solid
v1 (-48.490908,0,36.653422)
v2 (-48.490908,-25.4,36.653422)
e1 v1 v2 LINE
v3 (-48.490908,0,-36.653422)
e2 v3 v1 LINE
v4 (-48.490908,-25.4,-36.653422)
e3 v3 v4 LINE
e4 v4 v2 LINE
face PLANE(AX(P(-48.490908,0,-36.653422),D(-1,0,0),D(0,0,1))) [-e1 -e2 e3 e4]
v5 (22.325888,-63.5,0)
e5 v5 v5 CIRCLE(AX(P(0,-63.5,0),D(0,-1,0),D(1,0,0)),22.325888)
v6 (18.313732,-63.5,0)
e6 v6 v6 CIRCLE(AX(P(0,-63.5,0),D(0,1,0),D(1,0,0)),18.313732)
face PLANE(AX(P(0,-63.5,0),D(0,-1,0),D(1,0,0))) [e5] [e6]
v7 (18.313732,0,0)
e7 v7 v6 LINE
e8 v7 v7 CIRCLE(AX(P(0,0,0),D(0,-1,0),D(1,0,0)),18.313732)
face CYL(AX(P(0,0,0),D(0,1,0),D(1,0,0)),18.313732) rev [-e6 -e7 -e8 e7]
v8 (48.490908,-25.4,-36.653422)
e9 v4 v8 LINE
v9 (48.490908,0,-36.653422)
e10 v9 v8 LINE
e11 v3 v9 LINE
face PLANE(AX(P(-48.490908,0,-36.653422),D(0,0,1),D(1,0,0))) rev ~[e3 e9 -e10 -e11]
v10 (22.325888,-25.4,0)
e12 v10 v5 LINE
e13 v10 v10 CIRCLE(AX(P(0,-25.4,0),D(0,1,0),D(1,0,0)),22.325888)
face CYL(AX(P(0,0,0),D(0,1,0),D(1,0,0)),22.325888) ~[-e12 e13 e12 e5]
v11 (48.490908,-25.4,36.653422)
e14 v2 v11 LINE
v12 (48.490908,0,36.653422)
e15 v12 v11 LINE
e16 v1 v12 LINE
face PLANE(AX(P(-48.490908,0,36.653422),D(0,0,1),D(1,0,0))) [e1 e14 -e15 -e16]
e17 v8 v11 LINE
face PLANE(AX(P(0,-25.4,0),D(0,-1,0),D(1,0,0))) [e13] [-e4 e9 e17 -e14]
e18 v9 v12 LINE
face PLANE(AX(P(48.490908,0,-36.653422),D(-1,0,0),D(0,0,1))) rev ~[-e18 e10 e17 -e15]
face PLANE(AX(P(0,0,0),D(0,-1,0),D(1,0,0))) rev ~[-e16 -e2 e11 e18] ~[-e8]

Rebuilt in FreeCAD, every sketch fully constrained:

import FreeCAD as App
import Part
import Sketcher
Q = App.Units.Quantity


def add_polygon(sketch, points):
    """Adds a closed chain of lines whose ends are joined by coincident constraints."""
    first, n = sketch.GeometryCount, len(points)
    for a, b in zip(points, points[1:] + points[:1]):
        sketch.addGeometry(Part.LineSegment(App.Vector(*a, 0), App.Vector(*b, 0)), False)
    for i in range(n):
        sketch.addConstraint(Sketcher.Constraint("Coincident", first + i, 2, first + (i + 1) % n, 1))

doc = App.newDocument("Part")
body = doc.addObject("PartDesign::Body", "Body")

# Sketch on XZ plane
sketch1 = doc.addObject("Sketcher::SketchObject", "Sketch")
body.addObject(sketch1)
sketch1.AttachmentSupport = (doc.XZ_Plane, [""])
sketch1.MapMode = "FlatFace"
add_polygon(sketch1, [(-48.490908, 36.653422), (-48.490908, -36.653422), (48.490908, -36.653422), (48.490908, 36.653422)])  # lines 0-3
sketch1.addConstraint(Sketcher.Constraint("Vertical", 0))
sketch1.addConstraint(Sketcher.Constraint("Horizontal", 1))
sketch1.addConstraint(Sketcher.Constraint("Vertical", 2))
sketch1.addConstraint(Sketcher.Constraint("Horizontal", 3))
sketch1.addConstraint(Sketcher.Constraint("Symmetric", 0, 2, 2, 2, -1, 1))
sketch1.addConstraint(Sketcher.Constraint("DistanceX", 1, 1, 1, 2, Q("96.981816 mm")))
sketch1.addConstraint(Sketcher.Constraint("DistanceY", 0, 2, 0, 1, Q("73.306844 mm")))
pad1 = doc.addObject("PartDesign::Pad", "Pad")
body.addObject(pad1)
pad1.Profile = sketch1
pad1.Length = Q("1 in")

# Sketch on XZ plane
sketch2 = doc.addObject("Sketcher::SketchObject", "Sketch001")
body.addObject(sketch2)
sketch2.AttachmentSupport = (doc.XZ_Plane, [""])
sketch2.MapMode = "FlatFace"
sketch2.addGeometry(Part.Circle(App.Vector(0, 0, 0), App.Vector(0, 0, 1), 22.325888), False)
sketch2.addConstraint(Sketcher.Constraint("Coincident", 0, 3, -1, 1))
sketch2.addConstraint(Sketcher.Constraint("Diameter", 0, Q("44.651776 mm")))
pad2 = doc.addObject("PartDesign::Pad", "Pad001")
body.addObject(pad2)
pad2.Profile = sketch2
pad2.Length = Q("2.5 in")

# Sketch on XZ plane
sketch3 = doc.addObject("Sketcher::SketchObject", "Sketch002")
body.addObject(sketch3)
sketch3.AttachmentSupport = (doc.XZ_Plane, [""])
sketch3.MapMode = "FlatFace"
sketch3.addGeometry(Part.Circle(App.Vector(0, 0, 0), App.Vector(0, 0, 1), 18.313732), False)
sketch3.addConstraint(Sketcher.Constraint("Coincident", 0, 3, -1, 1))
sketch3.addConstraint(Sketcher.Constraint("Diameter", 0, Q("36.627464 mm")))
pocket1 = doc.addObject("PartDesign::Pocket", "Pocket")
body.addObject(pocket1)
pocket1.Profile = sketch3
pocket1.Type = "ThroughAll"
pocket1.Reversed = True

doc.recompute()
